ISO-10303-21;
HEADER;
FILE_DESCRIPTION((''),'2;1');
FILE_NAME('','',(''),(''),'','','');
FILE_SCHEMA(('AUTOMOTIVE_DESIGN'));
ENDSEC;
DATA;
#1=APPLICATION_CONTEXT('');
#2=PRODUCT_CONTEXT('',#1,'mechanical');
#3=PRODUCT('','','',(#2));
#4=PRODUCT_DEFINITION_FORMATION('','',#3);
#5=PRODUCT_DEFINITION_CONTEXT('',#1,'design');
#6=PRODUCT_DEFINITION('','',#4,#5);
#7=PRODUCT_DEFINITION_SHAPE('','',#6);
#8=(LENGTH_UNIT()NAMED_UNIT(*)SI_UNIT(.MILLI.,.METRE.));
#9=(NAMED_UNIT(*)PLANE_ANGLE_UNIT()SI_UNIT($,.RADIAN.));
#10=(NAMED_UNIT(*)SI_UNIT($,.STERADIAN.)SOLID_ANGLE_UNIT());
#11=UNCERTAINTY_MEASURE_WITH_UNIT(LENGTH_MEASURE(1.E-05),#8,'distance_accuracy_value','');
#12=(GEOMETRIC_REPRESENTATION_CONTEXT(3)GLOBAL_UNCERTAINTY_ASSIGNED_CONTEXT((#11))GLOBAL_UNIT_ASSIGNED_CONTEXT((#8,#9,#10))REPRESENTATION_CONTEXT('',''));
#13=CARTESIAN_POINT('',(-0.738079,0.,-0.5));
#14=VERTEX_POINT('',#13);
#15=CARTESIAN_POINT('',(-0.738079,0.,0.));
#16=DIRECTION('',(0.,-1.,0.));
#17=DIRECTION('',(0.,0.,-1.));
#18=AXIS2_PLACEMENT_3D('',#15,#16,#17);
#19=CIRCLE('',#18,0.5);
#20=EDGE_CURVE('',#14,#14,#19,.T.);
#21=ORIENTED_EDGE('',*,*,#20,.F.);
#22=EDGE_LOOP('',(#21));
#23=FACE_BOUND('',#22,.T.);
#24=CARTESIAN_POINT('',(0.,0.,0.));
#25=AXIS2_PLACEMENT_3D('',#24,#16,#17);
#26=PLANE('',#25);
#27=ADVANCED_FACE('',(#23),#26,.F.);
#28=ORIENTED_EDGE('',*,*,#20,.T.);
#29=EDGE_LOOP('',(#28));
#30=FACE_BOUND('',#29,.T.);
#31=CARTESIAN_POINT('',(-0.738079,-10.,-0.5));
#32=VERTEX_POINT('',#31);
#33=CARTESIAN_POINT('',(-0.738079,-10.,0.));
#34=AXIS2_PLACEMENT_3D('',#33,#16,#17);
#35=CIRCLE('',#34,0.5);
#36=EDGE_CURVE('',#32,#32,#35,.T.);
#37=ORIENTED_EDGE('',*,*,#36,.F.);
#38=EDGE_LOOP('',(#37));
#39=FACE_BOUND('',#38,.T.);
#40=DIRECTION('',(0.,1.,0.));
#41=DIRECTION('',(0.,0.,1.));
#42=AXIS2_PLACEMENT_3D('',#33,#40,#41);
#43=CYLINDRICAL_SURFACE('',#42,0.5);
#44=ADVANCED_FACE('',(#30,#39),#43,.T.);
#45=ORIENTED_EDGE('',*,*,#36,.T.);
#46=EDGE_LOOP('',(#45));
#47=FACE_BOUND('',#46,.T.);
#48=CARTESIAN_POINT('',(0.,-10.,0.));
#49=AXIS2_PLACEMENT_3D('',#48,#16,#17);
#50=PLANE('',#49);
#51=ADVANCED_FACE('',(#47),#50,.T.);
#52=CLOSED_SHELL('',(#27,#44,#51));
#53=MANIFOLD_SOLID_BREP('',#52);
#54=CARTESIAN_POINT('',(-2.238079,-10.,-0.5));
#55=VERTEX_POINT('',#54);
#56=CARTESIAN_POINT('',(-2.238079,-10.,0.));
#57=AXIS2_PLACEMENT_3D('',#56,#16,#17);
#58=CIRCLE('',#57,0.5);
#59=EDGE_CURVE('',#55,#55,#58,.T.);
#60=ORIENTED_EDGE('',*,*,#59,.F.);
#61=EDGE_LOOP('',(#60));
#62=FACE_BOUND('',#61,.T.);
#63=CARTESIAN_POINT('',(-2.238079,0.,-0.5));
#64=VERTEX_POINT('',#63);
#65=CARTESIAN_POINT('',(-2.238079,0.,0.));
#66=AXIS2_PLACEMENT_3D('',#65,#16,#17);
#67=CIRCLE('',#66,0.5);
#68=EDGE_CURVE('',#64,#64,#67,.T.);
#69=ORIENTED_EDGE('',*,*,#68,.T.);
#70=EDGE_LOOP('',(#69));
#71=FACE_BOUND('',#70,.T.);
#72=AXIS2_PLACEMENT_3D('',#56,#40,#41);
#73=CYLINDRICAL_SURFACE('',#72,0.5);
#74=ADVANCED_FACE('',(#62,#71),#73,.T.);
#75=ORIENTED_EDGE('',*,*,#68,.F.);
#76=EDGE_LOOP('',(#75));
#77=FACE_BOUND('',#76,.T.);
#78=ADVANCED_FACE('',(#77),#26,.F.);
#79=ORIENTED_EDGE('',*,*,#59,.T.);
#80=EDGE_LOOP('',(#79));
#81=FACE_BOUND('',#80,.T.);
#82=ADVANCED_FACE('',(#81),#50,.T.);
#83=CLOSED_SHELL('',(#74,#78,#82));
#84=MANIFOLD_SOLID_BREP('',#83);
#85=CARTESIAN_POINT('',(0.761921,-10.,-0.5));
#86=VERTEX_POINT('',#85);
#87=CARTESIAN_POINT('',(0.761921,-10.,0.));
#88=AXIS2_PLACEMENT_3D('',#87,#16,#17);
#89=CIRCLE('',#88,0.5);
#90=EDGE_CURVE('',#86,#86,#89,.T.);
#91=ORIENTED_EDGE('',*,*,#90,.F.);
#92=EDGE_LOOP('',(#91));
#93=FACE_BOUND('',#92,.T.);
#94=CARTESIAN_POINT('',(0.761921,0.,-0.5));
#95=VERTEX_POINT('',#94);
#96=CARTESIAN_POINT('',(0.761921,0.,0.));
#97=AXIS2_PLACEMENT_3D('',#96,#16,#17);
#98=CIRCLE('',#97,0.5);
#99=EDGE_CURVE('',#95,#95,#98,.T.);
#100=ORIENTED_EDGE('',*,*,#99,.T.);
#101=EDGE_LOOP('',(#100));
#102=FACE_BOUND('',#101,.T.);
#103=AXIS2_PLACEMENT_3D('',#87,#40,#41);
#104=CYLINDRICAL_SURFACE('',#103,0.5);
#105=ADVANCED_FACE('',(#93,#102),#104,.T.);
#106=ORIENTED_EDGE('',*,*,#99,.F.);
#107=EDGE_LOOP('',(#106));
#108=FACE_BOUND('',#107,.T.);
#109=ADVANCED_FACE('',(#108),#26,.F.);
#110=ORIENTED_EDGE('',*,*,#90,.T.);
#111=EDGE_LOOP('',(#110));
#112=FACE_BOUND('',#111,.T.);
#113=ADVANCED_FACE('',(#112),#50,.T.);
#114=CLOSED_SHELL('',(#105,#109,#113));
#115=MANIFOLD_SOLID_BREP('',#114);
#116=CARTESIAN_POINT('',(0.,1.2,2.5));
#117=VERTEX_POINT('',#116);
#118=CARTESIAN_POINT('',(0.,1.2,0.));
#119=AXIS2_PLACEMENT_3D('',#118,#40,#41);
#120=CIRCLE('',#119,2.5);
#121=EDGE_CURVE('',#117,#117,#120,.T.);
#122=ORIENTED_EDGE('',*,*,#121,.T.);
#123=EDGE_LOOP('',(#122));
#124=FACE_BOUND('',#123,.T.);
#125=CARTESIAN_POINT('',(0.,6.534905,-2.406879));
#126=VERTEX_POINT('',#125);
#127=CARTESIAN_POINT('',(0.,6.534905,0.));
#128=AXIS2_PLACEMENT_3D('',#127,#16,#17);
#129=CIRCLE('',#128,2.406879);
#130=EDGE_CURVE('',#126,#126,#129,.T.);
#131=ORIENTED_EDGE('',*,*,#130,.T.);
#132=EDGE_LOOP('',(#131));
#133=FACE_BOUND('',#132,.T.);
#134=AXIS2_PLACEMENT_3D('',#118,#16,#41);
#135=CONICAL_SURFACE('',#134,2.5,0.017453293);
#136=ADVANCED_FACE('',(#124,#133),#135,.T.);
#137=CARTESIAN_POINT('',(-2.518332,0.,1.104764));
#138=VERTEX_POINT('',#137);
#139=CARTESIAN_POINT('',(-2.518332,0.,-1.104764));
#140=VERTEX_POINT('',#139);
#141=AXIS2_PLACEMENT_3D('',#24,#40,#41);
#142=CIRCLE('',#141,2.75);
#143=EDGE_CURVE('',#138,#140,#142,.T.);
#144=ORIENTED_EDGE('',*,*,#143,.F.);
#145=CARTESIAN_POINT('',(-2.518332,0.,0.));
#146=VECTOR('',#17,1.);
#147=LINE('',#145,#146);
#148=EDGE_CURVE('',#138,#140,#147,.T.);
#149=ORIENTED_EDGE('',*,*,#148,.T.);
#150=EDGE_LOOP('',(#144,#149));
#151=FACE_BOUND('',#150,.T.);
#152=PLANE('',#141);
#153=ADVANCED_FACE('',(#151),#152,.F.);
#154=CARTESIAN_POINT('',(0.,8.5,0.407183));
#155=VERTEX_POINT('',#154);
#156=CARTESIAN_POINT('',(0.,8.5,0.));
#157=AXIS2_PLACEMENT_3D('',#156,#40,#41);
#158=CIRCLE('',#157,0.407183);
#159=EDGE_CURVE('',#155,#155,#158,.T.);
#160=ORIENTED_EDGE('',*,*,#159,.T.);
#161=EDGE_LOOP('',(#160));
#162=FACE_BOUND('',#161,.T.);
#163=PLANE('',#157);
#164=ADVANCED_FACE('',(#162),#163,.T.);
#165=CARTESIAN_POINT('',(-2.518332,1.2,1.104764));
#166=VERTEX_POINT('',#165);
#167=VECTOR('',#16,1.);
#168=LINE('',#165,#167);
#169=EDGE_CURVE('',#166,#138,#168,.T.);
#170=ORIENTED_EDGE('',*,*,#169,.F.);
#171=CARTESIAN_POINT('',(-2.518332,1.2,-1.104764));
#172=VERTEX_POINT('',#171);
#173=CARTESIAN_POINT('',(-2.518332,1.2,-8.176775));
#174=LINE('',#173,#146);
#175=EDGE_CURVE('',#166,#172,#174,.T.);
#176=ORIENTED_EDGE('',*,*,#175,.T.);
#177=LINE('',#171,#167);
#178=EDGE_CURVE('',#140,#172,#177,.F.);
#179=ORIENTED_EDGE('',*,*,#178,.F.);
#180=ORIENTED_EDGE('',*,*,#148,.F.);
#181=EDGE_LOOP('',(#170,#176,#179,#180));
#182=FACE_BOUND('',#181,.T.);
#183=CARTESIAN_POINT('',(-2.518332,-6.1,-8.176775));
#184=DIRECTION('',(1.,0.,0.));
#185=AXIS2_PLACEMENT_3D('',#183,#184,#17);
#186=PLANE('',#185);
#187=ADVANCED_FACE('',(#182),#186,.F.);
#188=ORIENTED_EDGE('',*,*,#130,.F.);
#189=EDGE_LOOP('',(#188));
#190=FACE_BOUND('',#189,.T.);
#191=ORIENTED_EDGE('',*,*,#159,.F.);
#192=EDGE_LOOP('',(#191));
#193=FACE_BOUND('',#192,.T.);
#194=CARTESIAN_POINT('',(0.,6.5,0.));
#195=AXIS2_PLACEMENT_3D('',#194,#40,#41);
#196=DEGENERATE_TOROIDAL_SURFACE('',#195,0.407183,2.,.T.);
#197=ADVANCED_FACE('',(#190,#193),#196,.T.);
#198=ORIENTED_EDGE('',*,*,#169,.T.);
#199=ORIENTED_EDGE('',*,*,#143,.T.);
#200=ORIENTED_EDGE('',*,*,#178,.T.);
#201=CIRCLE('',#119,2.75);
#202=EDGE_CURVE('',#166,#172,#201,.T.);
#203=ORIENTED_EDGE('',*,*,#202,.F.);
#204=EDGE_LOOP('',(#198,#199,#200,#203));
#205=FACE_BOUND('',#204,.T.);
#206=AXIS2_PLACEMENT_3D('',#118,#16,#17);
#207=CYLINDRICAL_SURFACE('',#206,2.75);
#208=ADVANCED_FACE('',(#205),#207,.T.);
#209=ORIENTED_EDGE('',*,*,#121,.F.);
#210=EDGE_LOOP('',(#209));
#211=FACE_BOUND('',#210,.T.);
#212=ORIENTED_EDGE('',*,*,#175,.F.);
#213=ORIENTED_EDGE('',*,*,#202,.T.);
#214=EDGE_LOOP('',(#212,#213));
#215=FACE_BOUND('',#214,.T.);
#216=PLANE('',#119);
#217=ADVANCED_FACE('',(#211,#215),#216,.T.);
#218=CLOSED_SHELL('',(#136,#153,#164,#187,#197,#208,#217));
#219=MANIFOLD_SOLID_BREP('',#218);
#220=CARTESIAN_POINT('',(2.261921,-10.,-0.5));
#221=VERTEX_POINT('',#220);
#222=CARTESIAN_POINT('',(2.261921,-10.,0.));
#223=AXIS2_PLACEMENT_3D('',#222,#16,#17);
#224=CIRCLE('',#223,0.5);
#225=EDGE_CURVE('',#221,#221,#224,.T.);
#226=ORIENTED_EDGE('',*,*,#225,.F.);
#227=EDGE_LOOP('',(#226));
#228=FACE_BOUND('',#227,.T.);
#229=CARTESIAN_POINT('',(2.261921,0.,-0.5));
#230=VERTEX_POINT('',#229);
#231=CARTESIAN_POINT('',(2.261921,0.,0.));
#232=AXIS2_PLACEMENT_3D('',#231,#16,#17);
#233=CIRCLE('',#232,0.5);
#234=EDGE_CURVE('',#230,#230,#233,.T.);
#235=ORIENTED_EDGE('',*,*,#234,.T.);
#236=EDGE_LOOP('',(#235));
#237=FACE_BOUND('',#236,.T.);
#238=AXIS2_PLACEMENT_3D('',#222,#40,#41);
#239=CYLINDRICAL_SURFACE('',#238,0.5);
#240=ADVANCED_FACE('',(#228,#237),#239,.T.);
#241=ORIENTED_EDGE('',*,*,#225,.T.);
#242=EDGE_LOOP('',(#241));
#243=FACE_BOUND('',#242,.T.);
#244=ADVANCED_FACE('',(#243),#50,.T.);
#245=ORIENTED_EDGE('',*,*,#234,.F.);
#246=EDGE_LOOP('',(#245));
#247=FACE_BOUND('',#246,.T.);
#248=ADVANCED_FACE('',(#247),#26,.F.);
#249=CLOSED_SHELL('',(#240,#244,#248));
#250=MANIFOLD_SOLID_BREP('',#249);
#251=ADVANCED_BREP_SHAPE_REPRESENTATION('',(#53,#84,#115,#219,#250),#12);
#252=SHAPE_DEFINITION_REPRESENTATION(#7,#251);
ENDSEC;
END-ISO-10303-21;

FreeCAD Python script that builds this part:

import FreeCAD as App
import Part
import Sketcher
Q = App.Units.Quantity


def edges_at(feature, points):
    """Names of the edges that pass closest to the given points."""
    edges = feature.Shape.Edges
    near = lambda p: min(range(len(edges)), key=lambda i: edges[i].distToShape(Part.Vertex(*p))[0])
    return sorted({f"Edge{near(p) + 1}" for p in points})

doc = App.newDocument("Part")
params = doc.addObject("Spreadsheet::Sheet", "Params")
for row, (alias, value) in enumerate([
    ("sketch1_diameter", "5.5 mm"),
    ("pad1_length", "1.2 mm"),
    ("sketch2_diameter", "5 mm"),
    ("pad2_length", "7.3 mm"),
    ("pad2_taper", "-1 deg"),
    ("fillet_radius", "2 mm"),
    ("pocket1_length", "7.3 mm"),
    ("sketch4_diameter", "1 mm"),
    ("pad3_length", "10 mm"),
    ("sketch5_diameter", "1 mm"),
    ("pad4_length", "10 mm"),
    ("sketch6_diameter", "1 mm"),
    ("pad5_length", "10 mm"),
    ("sketch7_diameter", "1 mm"),
    ("pad6_length", "10 mm"),
], start=1):
    params.set(f"A{row}", alias)
    params.set(f"B{row}", "=" + value)
    params.setAlias(f"B{row}", alias)

body = doc.addObject("PartDesign::Body", "Body")

# Sketch on XZ plane
sketch1 = body.newObject("Sketcher::SketchObject", "Sketch")
sketch1.AttachmentSupport = (doc.getObject("XZ_Plane"), [""])
sketch1.MapMode = "FlatFace"
sketch1.addGeometry(Part.Circle(App.Vector(0, 0, 0), App.Vector(0, 0, 1), 2.8), False)
sketch1.addConstraint([
    Sketcher.Constraint("Coincident", 0, 3, -1, 1),
    Sketcher.Constraint("Diameter", 0, Q("5.5 mm")),
])
sketch1.setExpression("Constraints[1]", "Params.sketch1_diameter")
pad1 = body.newObject("PartDesign::Pad", "Pad")
pad1.Profile = sketch1
pad1.setExpression("Length", "Params.pad1_length")
pad1.Reversed = True

# Sketch on XZ plane
sketch2 = body.newObject("Sketcher::SketchObject", "Sketch001")
sketch2.AttachmentSupport = (doc.getObject("XZ_Plane"), [""])
sketch2.MapMode = "FlatFace"
sketch2.AttachmentOffset = App.Placement(App.Vector(0, 0, -1.2), App.Rotation())
sketch2.addGeometry(Part.Circle(App.Vector(0, 0, 0), App.Vector(0, 0, 1), 2.5), False)
sketch2.addConstraint([
    Sketcher.Constraint("Coincident", 0, 3, -1, 1),
    Sketcher.Constraint("Diameter", 0, Q("5 mm")),
])
sketch2.setExpression("Constraints[1]", "Params.sketch2_diameter")
pad2 = body.newObject("PartDesign::Pad", "Pad001")
pad2.Profile = sketch2
pad2.setExpression("Length", "Params.pad2_length")
pad2.Reversed = True
pad2.setExpression("TaperAngle", "Params.pad2_taper")
doc.recompute()

fillet = body.newObject("PartDesign::Fillet", "Fillet")
fillet.Base = (pad2, edges_at(pad2, [(-2.373, 8.5, 0)]))
fillet.setExpression("Radius", "Params.fillet_radius")

# Sketch on XZ plane
sketch3 = body.newObject("Sketcher::SketchObject", "Sketch002")
sketch3.AttachmentSupport = (doc.getObject("XZ_Plane"), [""])
sketch3.MapMode = "FlatFace"
sketch3.AttachmentOffset = App.Placement(App.Vector(0, 0, -1.2), App.Rotation())
sketch3.addGeometry([
    Part.LineSegment(App.Vector(-5.5, -8.2, 0), App.Vector(-5.5, 3.8, 0)),
    Part.LineSegment(App.Vector(-5.5, 3.8, 0), App.Vector(-2.5, 3.8, 0)),
    Part.LineSegment(App.Vector(-2.5, 3.8, 0), App.Vector(-2.5, -8.2, 0)),
    Part.LineSegment(App.Vector(-2.5, -8.2, 0), App.Vector(-5.5, -8.2, 0)),
], False)
sketch3.addConstraint([
    Sketcher.Constraint("Coincident", 0, 2, 1, 1),
    Sketcher.Constraint("Coincident", 1, 2, 2, 1),
    Sketcher.Constraint("Coincident", 2, 2, 3, 1),
    Sketcher.Constraint("Coincident", 3, 2, 0, 1),
    Sketcher.Constraint("Vertical", 0),
    Sketcher.Constraint("Horizontal", 1),
    Sketcher.Constraint("Vertical", 2),
    Sketcher.Constraint("Horizontal", 3),
    Sketcher.Constraint("DistanceY", 0, 1, 0, 2, Q("11.947149 mm")),
    Sketcher.Constraint("DistanceX", 1, 1, 1, 2, Q("2.968486 mm")),
    Sketcher.Constraint("DistanceX", 0, 2, -1, 1, Q("5.486818 mm")),
    Sketcher.Constraint("DistanceY", -1, 1, 0, 2, Q("3.770375 mm")),
])
pocket1 = body.newObject("PartDesign::Pocket", "Pocket")
pocket1.Profile = sketch3
pocket1.setExpression("Length", "Params.pocket1_length")
pocket1.Reversed = True
body2 = doc.addObject("PartDesign::Body", "Body001")

# Sketch on XZ plane
sketch4 = body2.newObject("Sketcher::SketchObject", "Sketch003")
sketch4.AttachmentSupport = (doc.getObject("XZ_Plane001"), [""])
sketch4.MapMode = "FlatFace"
sketch4.addGeometry(Part.Circle(App.Vector(-2.2, 0, 0), App.Vector(0, 0, 1), 0.5), False)
sketch4.addConstraint([
    Sketcher.Constraint("PointOnObject", 0, 3, -1),
    Sketcher.Constraint("Diameter", 0, Q("1 mm")),
    Sketcher.Constraint("DistanceX", 0, 3, -1, 1, Q("2.238079 mm")),
])
sketch4.setExpression("Constraints[1]", "Params.sketch4_diameter")
pad3 = body2.newObject("PartDesign::Pad", "Pad002")
pad3.Profile = sketch4
pad3.setExpression("Length", "Params.pad3_length")
body3 = doc.addObject("PartDesign::Body", "Body002")

# Sketch on XZ plane
sketch5 = body3.newObject("Sketcher::SketchObject", "Sketch004")
sketch5.AttachmentSupport = (doc.getObject("XZ_Plane002"), [""])
sketch5.MapMode = "FlatFace"
sketch5.addGeometry(Part.Circle(App.Vector(-0.7, 0, 0), App.Vector(0, 0, 1), 0.5), False)
sketch5.addConstraint([
    Sketcher.Constraint("PointOnObject", 0, 3, -1),
    Sketcher.Constraint("Diameter", 0, Q("1 mm")),
    Sketcher.Constraint("DistanceX", 0, 3, -1, 1, Q("0.738079 mm")),
])
sketch5.setExpression("Constraints[1]", "Params.sketch5_diameter")
pad4 = body3.newObject("PartDesign::Pad", "Pad003")
pad4.Profile = sketch5
pad4.setExpression("Length", "Params.pad4_length")
body4 = doc.addObject("PartDesign::Body", "Body003")

# Sketch on XZ plane
sketch6 = body4.newObject("Sketcher::SketchObject", "Sketch005")
sketch6.AttachmentSupport = (doc.getObject("XZ_Plane003"), [""])
sketch6.MapMode = "FlatFace"
sketch6.addGeometry(Part.Circle(App.Vector(0.8, 0, 0), App.Vector(0, 0, 1), 0.5), False)
sketch6.addConstraint([
    Sketcher.Constraint("PointOnObject", 0, 3, -1),
    Sketcher.Constraint("Diameter", 0, Q("1 mm")),
    Sketcher.Constraint("DistanceX", -1, 1, 0, 3, Q("0.761921 mm")),
])
sketch6.setExpression("Constraints[1]", "Params.sketch6_diameter")
pad5 = body4.newObject("PartDesign::Pad", "Pad004")
pad5.Profile = sketch6
pad5.setExpression("Length", "Params.pad5_length")
body5 = doc.addObject("PartDesign::Body", "Body004")

# Sketch on XZ plane
sketch7 = body5.newObject("Sketcher::SketchObject", "Sketch006")
sketch7.AttachmentSupport = (doc.getObject("XZ_Plane004"), [""])
sketch7.MapMode = "FlatFace"
sketch7.addGeometry(Part.Circle(App.Vector(2.3, 0, 0), App.Vector(0, 0, 1), 0.5), False)
sketch7.addConstraint([
    Sketcher.Constraint("PointOnObject", 0, 3, -1),
    Sketcher.Constraint("Diameter", 0, Q("1 mm")),
    Sketcher.Constraint("DistanceX", -1, 1, 0, 3, Q("2.261921 mm")),
])
sketch7.setExpression("Constraints[1]", "Params.sketch7_diameter")
pad6 = body5.newObject("PartDesign::Pad", "Pad005")
pad6.Profile = sketch7
pad6.setExpression("Length", "Params.pad6_length")

doc.recompute()
